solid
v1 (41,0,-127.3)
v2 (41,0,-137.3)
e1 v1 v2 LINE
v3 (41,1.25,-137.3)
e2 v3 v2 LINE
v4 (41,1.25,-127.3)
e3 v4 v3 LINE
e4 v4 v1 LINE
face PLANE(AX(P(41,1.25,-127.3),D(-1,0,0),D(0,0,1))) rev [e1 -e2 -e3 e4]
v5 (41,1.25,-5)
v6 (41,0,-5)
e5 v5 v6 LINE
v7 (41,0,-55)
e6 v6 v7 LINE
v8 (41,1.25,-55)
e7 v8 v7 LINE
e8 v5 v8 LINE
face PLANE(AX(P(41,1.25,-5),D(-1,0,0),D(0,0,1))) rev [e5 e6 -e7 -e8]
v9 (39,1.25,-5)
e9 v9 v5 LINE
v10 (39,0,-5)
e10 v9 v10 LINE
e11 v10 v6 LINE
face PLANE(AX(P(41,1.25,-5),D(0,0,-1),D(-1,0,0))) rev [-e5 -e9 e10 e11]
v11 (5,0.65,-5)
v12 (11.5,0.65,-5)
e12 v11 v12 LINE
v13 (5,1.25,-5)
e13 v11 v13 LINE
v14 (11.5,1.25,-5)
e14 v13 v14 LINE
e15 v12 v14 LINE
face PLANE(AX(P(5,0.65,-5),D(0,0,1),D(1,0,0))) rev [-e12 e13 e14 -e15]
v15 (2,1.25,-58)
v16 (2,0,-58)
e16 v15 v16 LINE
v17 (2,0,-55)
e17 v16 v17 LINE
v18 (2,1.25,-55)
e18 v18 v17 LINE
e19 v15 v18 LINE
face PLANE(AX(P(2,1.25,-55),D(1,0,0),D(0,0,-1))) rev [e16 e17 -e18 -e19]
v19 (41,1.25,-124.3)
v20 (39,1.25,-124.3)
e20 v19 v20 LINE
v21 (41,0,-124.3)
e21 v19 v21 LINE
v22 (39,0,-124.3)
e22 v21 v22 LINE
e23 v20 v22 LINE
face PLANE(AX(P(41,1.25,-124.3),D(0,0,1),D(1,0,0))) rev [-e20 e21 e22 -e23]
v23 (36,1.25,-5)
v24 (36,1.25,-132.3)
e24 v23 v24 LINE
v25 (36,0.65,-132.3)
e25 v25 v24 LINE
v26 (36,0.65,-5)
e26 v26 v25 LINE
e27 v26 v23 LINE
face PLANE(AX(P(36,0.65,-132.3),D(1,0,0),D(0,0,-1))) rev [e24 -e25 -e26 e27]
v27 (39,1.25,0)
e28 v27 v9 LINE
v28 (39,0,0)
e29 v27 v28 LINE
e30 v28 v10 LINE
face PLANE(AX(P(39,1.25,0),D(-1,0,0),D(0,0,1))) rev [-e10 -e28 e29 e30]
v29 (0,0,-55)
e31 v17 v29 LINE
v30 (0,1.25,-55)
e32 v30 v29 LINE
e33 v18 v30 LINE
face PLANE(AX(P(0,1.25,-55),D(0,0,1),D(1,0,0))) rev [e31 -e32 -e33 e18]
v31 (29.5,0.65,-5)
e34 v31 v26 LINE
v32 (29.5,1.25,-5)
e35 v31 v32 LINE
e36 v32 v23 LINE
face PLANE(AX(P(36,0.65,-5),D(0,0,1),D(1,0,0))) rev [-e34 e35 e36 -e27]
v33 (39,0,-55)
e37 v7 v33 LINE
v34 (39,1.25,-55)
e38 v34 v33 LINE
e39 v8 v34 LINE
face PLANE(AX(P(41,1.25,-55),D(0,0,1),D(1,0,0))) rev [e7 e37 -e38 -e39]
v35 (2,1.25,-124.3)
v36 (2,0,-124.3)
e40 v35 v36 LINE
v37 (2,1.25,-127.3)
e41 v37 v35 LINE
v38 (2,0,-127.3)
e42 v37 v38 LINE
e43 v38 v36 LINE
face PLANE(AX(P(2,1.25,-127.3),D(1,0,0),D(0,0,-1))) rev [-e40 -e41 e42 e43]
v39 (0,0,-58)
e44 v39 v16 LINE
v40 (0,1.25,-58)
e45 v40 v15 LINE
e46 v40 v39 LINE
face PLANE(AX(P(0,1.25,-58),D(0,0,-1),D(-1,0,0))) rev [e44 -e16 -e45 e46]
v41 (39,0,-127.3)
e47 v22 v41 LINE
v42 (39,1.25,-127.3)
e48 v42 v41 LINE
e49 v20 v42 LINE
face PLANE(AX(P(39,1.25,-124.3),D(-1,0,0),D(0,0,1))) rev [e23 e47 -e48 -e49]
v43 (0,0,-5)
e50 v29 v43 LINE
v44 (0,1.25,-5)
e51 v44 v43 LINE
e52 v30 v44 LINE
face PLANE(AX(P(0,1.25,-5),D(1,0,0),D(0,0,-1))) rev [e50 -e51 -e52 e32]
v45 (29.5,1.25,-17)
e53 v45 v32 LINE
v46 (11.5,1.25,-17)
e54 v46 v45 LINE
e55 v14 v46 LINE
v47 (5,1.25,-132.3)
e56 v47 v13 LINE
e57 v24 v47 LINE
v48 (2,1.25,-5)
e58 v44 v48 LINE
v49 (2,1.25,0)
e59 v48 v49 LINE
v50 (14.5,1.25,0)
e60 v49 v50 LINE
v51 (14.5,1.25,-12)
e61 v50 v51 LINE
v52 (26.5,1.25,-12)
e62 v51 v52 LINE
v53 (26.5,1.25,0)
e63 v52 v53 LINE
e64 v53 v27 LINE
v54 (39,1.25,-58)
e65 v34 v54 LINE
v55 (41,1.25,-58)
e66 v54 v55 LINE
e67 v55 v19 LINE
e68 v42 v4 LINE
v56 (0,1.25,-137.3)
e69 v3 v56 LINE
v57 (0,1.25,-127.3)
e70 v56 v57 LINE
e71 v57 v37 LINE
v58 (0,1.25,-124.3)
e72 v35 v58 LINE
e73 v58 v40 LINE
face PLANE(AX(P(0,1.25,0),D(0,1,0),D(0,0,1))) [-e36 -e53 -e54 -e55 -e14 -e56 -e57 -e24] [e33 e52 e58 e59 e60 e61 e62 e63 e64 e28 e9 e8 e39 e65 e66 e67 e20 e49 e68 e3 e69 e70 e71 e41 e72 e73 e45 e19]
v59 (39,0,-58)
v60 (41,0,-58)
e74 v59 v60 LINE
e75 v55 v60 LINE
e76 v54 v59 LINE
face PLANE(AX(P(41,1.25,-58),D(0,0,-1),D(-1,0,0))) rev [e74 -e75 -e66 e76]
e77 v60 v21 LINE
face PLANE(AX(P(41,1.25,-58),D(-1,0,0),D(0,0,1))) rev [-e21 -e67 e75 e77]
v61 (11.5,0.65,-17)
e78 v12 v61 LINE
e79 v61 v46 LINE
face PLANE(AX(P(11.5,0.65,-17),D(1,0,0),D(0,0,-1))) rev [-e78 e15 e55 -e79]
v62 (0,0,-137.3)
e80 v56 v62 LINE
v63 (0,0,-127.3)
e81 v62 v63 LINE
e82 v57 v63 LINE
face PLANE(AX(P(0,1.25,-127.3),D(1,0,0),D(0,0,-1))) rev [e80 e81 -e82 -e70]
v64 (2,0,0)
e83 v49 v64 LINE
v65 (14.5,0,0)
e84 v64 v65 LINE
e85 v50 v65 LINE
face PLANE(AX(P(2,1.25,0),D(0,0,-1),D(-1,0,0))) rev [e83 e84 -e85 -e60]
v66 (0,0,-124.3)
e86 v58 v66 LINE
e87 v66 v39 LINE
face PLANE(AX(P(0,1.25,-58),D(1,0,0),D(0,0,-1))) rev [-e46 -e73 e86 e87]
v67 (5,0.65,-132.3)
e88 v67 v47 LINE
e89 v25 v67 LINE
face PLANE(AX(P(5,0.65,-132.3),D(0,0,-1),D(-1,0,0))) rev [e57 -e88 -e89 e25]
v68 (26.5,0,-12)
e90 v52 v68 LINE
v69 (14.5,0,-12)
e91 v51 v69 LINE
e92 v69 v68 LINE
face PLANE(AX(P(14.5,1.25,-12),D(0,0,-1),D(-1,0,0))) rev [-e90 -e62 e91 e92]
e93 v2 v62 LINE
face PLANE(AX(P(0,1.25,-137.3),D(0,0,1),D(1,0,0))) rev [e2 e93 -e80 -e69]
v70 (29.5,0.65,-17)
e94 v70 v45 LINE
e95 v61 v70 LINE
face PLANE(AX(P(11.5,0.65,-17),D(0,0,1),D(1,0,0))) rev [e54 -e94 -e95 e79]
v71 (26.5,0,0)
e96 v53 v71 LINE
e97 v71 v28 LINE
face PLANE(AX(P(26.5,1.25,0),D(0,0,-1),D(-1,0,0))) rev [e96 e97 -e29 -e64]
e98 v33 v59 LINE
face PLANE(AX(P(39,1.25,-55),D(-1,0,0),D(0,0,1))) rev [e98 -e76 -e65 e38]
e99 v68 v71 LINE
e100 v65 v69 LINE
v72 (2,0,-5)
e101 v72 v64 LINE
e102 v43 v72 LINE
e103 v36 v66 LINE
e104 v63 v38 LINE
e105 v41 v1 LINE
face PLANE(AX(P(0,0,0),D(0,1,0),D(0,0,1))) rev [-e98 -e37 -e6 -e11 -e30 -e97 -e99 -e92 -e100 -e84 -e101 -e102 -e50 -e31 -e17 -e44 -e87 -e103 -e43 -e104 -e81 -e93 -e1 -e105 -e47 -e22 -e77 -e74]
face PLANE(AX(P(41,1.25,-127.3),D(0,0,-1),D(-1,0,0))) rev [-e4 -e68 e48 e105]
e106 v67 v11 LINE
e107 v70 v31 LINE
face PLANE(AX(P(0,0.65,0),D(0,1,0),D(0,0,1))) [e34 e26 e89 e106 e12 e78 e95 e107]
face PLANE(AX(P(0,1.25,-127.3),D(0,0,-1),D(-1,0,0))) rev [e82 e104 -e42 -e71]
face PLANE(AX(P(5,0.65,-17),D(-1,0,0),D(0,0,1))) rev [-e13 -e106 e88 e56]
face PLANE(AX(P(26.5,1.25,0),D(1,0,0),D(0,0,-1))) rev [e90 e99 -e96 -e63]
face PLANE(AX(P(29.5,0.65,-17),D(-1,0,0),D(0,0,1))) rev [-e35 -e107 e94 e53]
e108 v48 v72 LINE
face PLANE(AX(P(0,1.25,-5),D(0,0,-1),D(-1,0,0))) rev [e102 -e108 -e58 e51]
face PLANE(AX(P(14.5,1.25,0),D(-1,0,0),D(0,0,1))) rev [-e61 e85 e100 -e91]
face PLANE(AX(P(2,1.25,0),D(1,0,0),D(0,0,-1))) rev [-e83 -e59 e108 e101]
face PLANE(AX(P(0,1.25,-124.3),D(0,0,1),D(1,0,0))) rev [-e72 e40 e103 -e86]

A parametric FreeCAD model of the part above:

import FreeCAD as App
import Part
import Sketcher
from FreeCAD import Vector
Q = App.Units.Quantity

doc = App.newDocument("Part")
params = doc.addObject("Spreadsheet::Sheet", "Params")
for row, (alias, value) in enumerate([
    ("sketch1_width", "2 mm"),
    ("sketch1_width2", "12 mm"),
    ("sketch1_width3", "41 mm"),
    ("sketch1_height", "3 mm"),
    ("sketch1_height2", "50 mm"),
    ("pad1_length", "1.25 mm"),
    ("sketch2_width", "31 mm"),
    ("sketch2_width2", "18 mm"),
    ("sketch2_height", "12 mm"),
    ("sketch2_height2", "127.3 mm"),
    ("pocket1_length", "0.6 mm"),
], start=1):
    params.set(f"A{row}", alias)
    params.set(f"B{row}", "=" + value)
    params.setAlias(f"B{row}", alias)

body = doc.addObject("PartDesign::Body", "Body")

# Sketch on XZ plane
sketch1 = body.newObject("Sketcher::SketchObject", "Sketch")
sketch1.AttachmentSupport = (doc.getObject("XZ_Plane"), [""])
sketch1.MapMode = "FlatFace"
sketch1.addGeometry([
    Part.LineSegment(Vector(0, -124.3, 0), Vector(0, -58, 0)),  # 0
    Part.LineSegment(Vector(0, -58, 0), Vector(2, -58, 0)),  # 1
    Part.LineSegment(Vector(2, -58, 0), Vector(2, -55, 0)),  # 2
    Part.LineSegment(Vector(2, -55, 0), Vector(0, -55, 0)),  # 3
    Part.LineSegment(Vector(0, -55, 0), Vector(0, -5, 0)),  # 4
    Part.LineSegment(Vector(0, -5, 0), Vector(2, -5, 0)),  # 5
    Part.LineSegment(Vector(2, -5, 0), Vector(2, 0, 0)),  # 6
    Part.LineSegment(Vector(2, 0, 0), Vector(14.5, 0, 0)),  # 7
    Part.LineSegment(Vector(14.5, 0, 0), Vector(14.5, -12, 0)),  # 8
    Part.LineSegment(Vector(14.5, -12, 0), Vector(26.5, -12, 0)),  # 9
    Part.LineSegment(Vector(26.5, -12, 0), Vector(26.5, 0, 0)),  # 10
    Part.LineSegment(Vector(26.5, 0, 0), Vector(39, 0, 0)),  # 11
    Part.LineSegment(Vector(39, 0, 0), Vector(39, -5, 0)),  # 12
    Part.LineSegment(Vector(39, -5, 0), Vector(41, -5, 0)),  # 13
    Part.LineSegment(Vector(41, -5, 0), Vector(41, -55, 0)),  # 14
    Part.LineSegment(Vector(41, -55, 0), Vector(39, -55, 0)),  # 15
    Part.LineSegment(Vector(39, -55, 0), Vector(39, -58, 0)),  # 16
    Part.LineSegment(Vector(39, -58, 0), Vector(41, -58, 0)),  # 17
    Part.LineSegment(Vector(41, -58, 0), Vector(41, -124.3, 0)),  # 18
    Part.LineSegment(Vector(41, -124.3, 0), Vector(39, -124.3, 0)),  # 19
    Part.LineSegment(Vector(39, -124.3, 0), Vector(39, -127.3, 0)),  # 20
    Part.LineSegment(Vector(39, -127.3, 0), Vector(41, -127.3, 0)),  # 21
    Part.LineSegment(Vector(41, -127.3, 0), Vector(41, -137.3, 0)),  # 22
    Part.LineSegment(Vector(41, -137.3, 0), Vector(0, -137.3, 0)),  # 23
    Part.LineSegment(Vector(0, -137.3, 0), Vector(0, -127.3, 0)),  # 24
    Part.LineSegment(Vector(0, -127.3, 0), Vector(2, -127.3, 0)),  # 25
    Part.LineSegment(Vector(2, -127.3, 0), Vector(2, -124.3, 0)),  # 26
    Part.LineSegment(Vector(2, -124.3, 0), Vector(0, -124.3, 0)),  # 27
], False)
sketch1.addConstraint([
    Sketcher.Constraint("Coincident", 0, 2, 1, 1),
    Sketcher.Constraint("Coincident", 1, 2, 2, 1),
    Sketcher.Constraint("Coincident", 2, 2, 3, 1),
    Sketcher.Constraint("Coincident", 3, 2, 4, 1),
    Sketcher.Constraint("Coincident", 4, 2, 5, 1),
    Sketcher.Constraint("Coincident", 5, 2, 6, 1),
    Sketcher.Constraint("Coincident", 6, 2, 7, 1),
    Sketcher.Constraint("Coincident", 7, 2, 8, 1),
    Sketcher.Constraint("Coincident", 8, 2, 9, 1),
    Sketcher.Constraint("Coincident", 9, 2, 10, 1),
    Sketcher.Constraint("Coincident", 10, 2, 11, 1),
    Sketcher.Constraint("Coincident", 11, 2, 12, 1),
    Sketcher.Constraint("Coincident", 12, 2, 13, 1),
    Sketcher.Constraint("Coincident", 13, 2, 14, 1),
    Sketcher.Constraint("Coincident", 14, 2, 15, 1),
    Sketcher.Constraint("Coincident", 15, 2, 16, 1),
    Sketcher.Constraint("Coincident", 16, 2, 17, 1),
    Sketcher.Constraint("Coincident", 17, 2, 18, 1),
    Sketcher.Constraint("Coincident", 18, 2, 19, 1),
    Sketcher.Constraint("Coincident", 19, 2, 20, 1),
    Sketcher.Constraint("Coincident", 20, 2, 21, 1),
    Sketcher.Constraint("Coincident", 21, 2, 22, 1),
    Sketcher.Constraint("Coincident", 22, 2, 23, 1),
    Sketcher.Constraint("Coincident", 23, 2, 24, 1),
    Sketcher.Constraint("Coincident", 24, 2, 25, 1),
    Sketcher.Constraint("Coincident", 25, 2, 26, 1),
    Sketcher.Constraint("Coincident", 26, 2, 27, 1),
    Sketcher.Constraint("Coincident", 27, 2, 0, 1),
    Sketcher.Constraint("Vertical", 0),
    Sketcher.Constraint("Horizontal", 1),
    Sketcher.Constraint("Vertical", 2),
    Sketcher.Constraint("Horizontal", 3),
    Sketcher.Constraint("Vertical", 4),
    Sketcher.Constraint("Horizontal", 5),
    Sketcher.Constraint("Vertical", 6),
    Sketcher.Constraint("Horizontal", 7),
    Sketcher.Constraint("Vertical", 8),
    Sketcher.Constraint("Horizontal", 9),
    Sketcher.Constraint("Vertical", 10),
    Sketcher.Constraint("Horizontal", 11),
    Sketcher.Constraint("Vertical", 12),
    Sketcher.Constraint("Horizontal", 13),
    Sketcher.Constraint("Vertical", 14),
    Sketcher.Constraint("Horizontal", 15),
    Sketcher.Constraint("Vertical", 16),
    Sketcher.Constraint("Horizontal", 17),
    Sketcher.Constraint("Vertical", 18),
    Sketcher.Constraint("Horizontal", 19),
    Sketcher.Constraint("Vertical", 20),
    Sketcher.Constraint("Horizontal", 21),
    Sketcher.Constraint("Vertical", 22),
    Sketcher.Constraint("Horizontal", 23),
    Sketcher.Constraint("Vertical", 24),
    Sketcher.Constraint("Horizontal", 25),
    Sketcher.Constraint("Vertical", 26),
    Sketcher.Constraint("Horizontal", 27),
    Sketcher.Constraint("PointOnObject", 0, 2, -2),
    Sketcher.Constraint("PointOnObject", 3, 2, -2),
    Sketcher.Constraint("PointOnObject", 6, 2, -1),
    Sketcher.Constraint("PointOnObject", 10, 2, -1),
    Sketcher.Constraint("PointOnObject", 23, 2, -2),
    Sketcher.Constraint("Horizontal", 5, 2, 12, 2),
    Sketcher.Constraint("Horizontal", 3, 2, 14, 2),
    Sketcher.Constraint("Horizontal", 1, 2, 16, 2),
    Sketcher.Constraint("Horizontal", 21, 2, 24, 2),
    Sketcher.Constraint("Horizontal", 19, 2, 26, 2),
    Sketcher.Constraint("Vertical", 2, 2, 5, 2),
    Sketcher.Constraint("Vertical", 12, 2, 15, 2),
    Sketcher.Constraint("Vertical", 14, 2, 17, 2),
    Sketcher.Constraint("Vertical", 16, 2, 19, 2),
    Sketcher.Constraint("Vertical", 18, 2, 21, 2),
    Sketcher.Constraint("Vertical", 6, 2, 25, 2),
    Sketcher.Constraint("Equal", 7, 11),
    Sketcher.Constraint("Equal", 5, 13),
    Sketcher.Constraint("Equal", 9, 8),
    Sketcher.Constraint("Equal", 16, 20),
    Sketcher.Constraint("DistanceX", 1, 1, 1, 2, Q("2 mm")),
    Sketcher.Constraint("DistanceX", 9, 1, 9, 2, Q("12 mm")),
    Sketcher.Constraint("DistanceX", 23, 2, 23, 1, Q("41 mm")),
    Sketcher.Constraint("DistanceY", 2, 1, 2, 2, Q("3 mm")),
    Sketcher.Constraint("DistanceY", 4, 1, 4, 2, Q("50 mm")),
    Sketcher.Constraint("DistanceY", 6, 1, 6, 2, Q("5 mm")),
    Sketcher.Constraint("DistanceY", 22, 2, 22, 1, Q("10 mm")),
    Sketcher.Constraint("DistanceY", 0, 1, 0, 2, Q("66.3 mm")),
])
sketch1.setExpression("Constraints[76]", "Params.sketch1_width")
sketch1.setExpression("Constraints[77]", "Params.sketch1_width2")
sketch1.setExpression("Constraints[78]", "Params.sketch1_width3")
sketch1.setExpression("Constraints[79]", "Params.sketch1_height")
sketch1.setExpression("Constraints[80]", "Params.sketch1_height2")
pad1 = body.newObject("PartDesign::Pad", "Pad")
pad1.Profile = sketch1
pad1.setExpression("Length", "Params.pad1_length")
pad1.Reversed = True

# Sketch on XZ plane
sketch2 = body.newObject("Sketcher::SketchObject", "Sketch001")
sketch2.AttachmentSupport = (doc.getObject("XZ_Plane"), [""])
sketch2.MapMode = "FlatFace"
sketch2.AttachmentOffset = App.Placement(Vector(0, 0, -1.25), App.Rotation())
sketch2.addGeometry([
    Part.LineSegment(Vector(36, -132, 0), Vector(5, -132, 0)),  # 0
    Part.LineSegment(Vector(5, -132, 0), Vector(5, -5, 0)),  # 1
    Part.LineSegment(Vector(5, -5, 0), Vector(12, -5, 0)),  # 2
    Part.LineSegment(Vector(12, -5, 0), Vector(12, -17, 0)),  # 3
    Part.LineSegment(Vector(12, -17, 0), Vector(30, -17, 0)),  # 4
    Part.LineSegment(Vector(30, -17, 0), Vector(30, -5, 0)),  # 5
    Part.LineSegment(Vector(30, -5, 0), Vector(36, -5, 0)),  # 6
    Part.LineSegment(Vector(36, -5, 0), Vector(36, -132, 0)),  # 7
], False)
sketch2.addConstraint([
    Sketcher.Constraint("Coincident", 0, 2, 1, 1),
    Sketcher.Constraint("Coincident", 1, 2, 2, 1),
    Sketcher.Constraint("Coincident", 2, 2, 3, 1),
    Sketcher.Constraint("Coincident", 3, 2, 4, 1),
    Sketcher.Constraint("Coincident", 4, 2, 5, 1),
    Sketcher.Constraint("Coincident", 5, 2, 6, 1),
    Sketcher.Constraint("Coincident", 6, 2, 7, 1),
    Sketcher.Constraint("Coincident", 7, 2, 0, 1),
    Sketcher.Constraint("Horizontal", 0),
    Sketcher.Constraint("Vertical", 1),
    Sketcher.Constraint("Horizontal", 2),
    Sketcher.Constraint("Vertical", 3),
    Sketcher.Constraint("Horizontal", 4),
    Sketcher.Constraint("Vertical", 5),
    Sketcher.Constraint("Horizontal", 6),
    Sketcher.Constraint("Vertical", 7),
    Sketcher.Constraint("Horizontal", 2, 2, 5, 2),
    Sketcher.Constraint("Equal", 2, 6),
    Sketcher.Constraint("DistanceX", 0, 2, 0, 1, Q("31 mm")),
    Sketcher.Constraint("DistanceX", 4, 1, 4, 2, Q("18 mm")),
    Sketcher.Constraint("DistanceY", 3, 2, 3, 1, Q("12 mm")),
    Sketcher.Constraint("DistanceY", 1, 1, 1, 2, Q("127.3 mm")),
    Sketcher.Constraint("DistanceX", -1, 1, 0, 2, Q("5 mm")),
    Sketcher.Constraint("DistanceY", 1, 2, -1, 1, Q("5 mm")),
])
sketch2.setExpression("Constraints[18]", "Params.sketch2_width")
sketch2.setExpression("Constraints[19]", "Params.sketch2_width2")
sketch2.setExpression("Constraints[20]", "Params.sketch2_height")
sketch2.setExpression("Constraints[21]", "Params.sketch2_height2")
pocket1 = body.newObject("PartDesign::Pocket", "Pocket")
pocket1.Profile = sketch2
pocket1.setExpression("Length", "Params.pocket1_length")
pocket1.Reversed = True

doc.recompute()
